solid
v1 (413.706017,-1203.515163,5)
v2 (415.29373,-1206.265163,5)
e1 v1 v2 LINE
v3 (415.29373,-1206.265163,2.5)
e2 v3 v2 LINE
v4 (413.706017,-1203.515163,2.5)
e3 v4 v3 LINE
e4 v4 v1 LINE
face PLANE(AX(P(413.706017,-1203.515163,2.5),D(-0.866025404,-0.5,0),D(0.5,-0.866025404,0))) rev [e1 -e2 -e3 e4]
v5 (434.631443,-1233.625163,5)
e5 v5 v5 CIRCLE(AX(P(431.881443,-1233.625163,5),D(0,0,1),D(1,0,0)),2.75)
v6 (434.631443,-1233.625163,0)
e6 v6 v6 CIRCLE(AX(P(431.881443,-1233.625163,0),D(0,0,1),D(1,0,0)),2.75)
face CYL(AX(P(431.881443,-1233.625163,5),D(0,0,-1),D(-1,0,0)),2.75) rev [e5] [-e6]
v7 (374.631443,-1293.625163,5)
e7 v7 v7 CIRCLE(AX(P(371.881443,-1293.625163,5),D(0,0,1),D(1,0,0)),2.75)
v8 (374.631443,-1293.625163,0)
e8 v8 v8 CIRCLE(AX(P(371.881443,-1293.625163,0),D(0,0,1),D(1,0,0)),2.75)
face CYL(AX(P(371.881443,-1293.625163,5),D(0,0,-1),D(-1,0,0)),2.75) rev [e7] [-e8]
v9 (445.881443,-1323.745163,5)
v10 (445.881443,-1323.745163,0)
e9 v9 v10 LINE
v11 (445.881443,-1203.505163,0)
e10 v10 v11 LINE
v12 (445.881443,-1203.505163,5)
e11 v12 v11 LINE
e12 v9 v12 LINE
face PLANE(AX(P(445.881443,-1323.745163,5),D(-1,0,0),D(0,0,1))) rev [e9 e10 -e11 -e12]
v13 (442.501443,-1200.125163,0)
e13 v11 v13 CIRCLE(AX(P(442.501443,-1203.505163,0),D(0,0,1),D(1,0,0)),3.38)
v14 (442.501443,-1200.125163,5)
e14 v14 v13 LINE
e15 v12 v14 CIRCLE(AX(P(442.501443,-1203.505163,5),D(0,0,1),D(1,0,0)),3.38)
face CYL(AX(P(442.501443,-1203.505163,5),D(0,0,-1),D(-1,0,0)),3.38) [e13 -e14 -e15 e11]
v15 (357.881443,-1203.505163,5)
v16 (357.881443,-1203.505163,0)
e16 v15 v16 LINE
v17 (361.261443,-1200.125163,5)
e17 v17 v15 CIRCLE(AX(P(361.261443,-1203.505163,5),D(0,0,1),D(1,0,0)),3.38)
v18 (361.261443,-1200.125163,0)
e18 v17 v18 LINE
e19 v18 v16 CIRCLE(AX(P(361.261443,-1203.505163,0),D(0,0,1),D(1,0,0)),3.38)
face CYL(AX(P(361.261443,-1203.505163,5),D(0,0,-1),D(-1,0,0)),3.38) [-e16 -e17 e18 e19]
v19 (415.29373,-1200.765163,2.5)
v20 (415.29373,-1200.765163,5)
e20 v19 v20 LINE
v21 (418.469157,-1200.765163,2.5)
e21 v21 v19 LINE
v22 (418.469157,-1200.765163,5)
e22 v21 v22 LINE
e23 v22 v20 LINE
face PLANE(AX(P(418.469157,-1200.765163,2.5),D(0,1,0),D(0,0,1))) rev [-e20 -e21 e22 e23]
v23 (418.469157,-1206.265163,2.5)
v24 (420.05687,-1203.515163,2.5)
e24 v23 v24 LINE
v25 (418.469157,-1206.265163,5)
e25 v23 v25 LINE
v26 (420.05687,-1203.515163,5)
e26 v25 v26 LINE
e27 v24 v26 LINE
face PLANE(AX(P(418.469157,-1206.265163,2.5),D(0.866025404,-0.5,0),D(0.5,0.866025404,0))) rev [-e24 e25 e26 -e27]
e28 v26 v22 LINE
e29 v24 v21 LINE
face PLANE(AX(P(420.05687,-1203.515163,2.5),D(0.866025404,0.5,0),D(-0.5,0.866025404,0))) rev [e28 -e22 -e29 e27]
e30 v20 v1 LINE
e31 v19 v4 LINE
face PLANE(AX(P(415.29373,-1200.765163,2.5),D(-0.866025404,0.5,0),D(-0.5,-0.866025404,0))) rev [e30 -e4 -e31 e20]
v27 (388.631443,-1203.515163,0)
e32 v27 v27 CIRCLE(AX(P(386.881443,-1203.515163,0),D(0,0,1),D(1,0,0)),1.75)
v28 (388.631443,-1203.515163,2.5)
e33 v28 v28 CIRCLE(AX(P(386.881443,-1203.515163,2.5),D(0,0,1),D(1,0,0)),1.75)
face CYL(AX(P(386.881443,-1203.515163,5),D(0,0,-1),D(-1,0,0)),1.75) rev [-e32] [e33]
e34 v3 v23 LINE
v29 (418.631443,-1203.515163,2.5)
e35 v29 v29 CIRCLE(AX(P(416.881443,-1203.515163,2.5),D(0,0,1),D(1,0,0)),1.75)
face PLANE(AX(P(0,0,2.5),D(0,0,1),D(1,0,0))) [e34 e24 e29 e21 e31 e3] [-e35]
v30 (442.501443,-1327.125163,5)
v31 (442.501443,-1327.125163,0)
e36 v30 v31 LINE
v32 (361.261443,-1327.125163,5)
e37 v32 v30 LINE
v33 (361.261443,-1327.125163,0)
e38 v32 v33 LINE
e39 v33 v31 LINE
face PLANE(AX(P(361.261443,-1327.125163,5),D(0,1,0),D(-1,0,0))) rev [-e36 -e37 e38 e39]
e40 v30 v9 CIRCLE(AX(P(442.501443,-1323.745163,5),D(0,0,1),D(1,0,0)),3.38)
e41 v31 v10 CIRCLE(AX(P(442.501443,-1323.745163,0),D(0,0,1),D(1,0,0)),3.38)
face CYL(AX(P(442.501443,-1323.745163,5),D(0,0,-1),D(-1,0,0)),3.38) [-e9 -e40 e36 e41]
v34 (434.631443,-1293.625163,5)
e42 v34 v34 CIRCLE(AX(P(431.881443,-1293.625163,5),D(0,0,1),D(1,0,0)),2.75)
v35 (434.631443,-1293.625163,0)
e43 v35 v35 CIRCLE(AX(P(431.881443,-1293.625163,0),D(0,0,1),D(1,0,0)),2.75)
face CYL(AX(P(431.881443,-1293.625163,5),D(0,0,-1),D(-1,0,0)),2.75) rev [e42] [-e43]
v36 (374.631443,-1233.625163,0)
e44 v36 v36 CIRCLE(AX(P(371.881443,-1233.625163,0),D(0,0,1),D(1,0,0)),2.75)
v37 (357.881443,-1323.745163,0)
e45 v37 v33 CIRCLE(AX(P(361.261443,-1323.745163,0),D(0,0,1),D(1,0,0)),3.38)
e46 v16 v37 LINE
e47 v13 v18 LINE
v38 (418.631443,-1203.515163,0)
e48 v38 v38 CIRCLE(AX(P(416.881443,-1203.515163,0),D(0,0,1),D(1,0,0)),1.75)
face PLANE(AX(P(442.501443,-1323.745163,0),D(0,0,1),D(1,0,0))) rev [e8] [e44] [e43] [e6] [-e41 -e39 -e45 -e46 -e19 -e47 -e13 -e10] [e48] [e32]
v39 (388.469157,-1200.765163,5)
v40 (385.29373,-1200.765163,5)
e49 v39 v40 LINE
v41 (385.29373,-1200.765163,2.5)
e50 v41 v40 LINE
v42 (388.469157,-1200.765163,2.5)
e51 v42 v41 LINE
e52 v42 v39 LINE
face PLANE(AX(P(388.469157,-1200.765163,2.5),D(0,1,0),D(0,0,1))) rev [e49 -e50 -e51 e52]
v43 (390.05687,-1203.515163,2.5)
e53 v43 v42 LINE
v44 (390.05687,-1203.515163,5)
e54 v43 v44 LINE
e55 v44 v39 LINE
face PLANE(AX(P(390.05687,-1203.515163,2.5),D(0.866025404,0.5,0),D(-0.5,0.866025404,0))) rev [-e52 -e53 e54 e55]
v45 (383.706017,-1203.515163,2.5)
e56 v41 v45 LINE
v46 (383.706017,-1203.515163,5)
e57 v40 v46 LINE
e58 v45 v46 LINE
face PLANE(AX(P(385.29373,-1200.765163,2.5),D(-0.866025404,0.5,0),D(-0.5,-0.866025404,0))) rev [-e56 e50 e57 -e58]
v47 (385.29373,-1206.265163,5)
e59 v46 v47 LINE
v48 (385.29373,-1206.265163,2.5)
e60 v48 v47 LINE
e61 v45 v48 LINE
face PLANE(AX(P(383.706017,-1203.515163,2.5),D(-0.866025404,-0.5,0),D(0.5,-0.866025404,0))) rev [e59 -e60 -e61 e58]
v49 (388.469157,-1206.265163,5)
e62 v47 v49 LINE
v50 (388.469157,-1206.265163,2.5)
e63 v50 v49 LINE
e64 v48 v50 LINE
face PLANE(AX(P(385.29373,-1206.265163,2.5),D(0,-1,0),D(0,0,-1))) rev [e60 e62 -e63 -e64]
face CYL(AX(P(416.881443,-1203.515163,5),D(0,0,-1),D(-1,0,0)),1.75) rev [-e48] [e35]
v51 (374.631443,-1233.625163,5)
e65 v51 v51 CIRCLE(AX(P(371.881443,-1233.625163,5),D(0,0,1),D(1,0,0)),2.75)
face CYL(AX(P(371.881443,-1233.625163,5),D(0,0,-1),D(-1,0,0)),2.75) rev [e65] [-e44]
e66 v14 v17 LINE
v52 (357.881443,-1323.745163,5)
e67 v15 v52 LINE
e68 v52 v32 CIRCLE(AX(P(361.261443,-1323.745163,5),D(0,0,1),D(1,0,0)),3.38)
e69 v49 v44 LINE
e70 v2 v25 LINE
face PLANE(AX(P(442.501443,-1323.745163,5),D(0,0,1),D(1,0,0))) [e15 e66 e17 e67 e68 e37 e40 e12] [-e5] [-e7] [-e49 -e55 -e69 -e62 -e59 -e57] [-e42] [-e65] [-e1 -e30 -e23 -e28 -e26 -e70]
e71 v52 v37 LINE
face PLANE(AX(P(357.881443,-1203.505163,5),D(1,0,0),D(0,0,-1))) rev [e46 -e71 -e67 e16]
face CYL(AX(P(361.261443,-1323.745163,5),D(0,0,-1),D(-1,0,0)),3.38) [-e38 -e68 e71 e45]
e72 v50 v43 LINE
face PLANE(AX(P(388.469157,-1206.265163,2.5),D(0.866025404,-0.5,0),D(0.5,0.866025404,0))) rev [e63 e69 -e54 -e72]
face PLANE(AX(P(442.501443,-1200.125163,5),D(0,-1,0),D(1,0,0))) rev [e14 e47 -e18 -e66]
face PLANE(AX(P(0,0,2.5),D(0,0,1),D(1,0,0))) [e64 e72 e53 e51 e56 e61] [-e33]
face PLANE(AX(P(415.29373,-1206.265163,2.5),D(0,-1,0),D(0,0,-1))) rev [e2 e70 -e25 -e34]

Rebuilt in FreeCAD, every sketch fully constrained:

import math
import FreeCAD as App
import Part
import Sketcher
Q = App.Units.Quantity


def add_polygon(sketch, points):
    """Adds a closed chain of lines whose ends are joined by coincident constraints."""
    first, n = sketch.GeometryCount, len(points)
    for a, b in zip(points, points[1:] + points[:1]):
        sketch.addGeometry(Part.LineSegment(App.Vector(*a, 0), App.Vector(*b, 0)), False)
    for i in range(n):
        sketch.addConstraint(Sketcher.Constraint("Coincident", first + i, 2, first + (i + 1) % n, 1))

doc = App.newDocument("Part")
body = doc.addObject("PartDesign::Body", "Body")

# Sketch on XY plane
sketch1 = body.newObject("Sketcher::SketchObject", "Sketch")
sketch1.AttachmentSupport = (doc.getObject("XY_Plane"), [""])
sketch1.MapMode = "FlatFace"
sketch1.addGeometry(Part.LineSegment(App.Vector(445.9, -1323.7, 0), App.Vector(445.9, -1203.5, 0)), False)
sketch1.addGeometry(Part.ArcOfCircle(Part.Circle(App.Vector(442.5, -1203.5, 0), App.Vector(0, 0, 1), 3.4), math.radians(0), math.radians(90)), False)
sketch1.addGeometry(Part.LineSegment(App.Vector(442.5, -1200.1, 0), App.Vector(361.3, -1200.1, 0)), False)
sketch1.addGeometry(Part.ArcOfCircle(Part.Circle(App.Vector(361.3, -1203.5, 0), App.Vector(0, 0, 1), 3.4), math.radians(90), math.radians(180)), False)
sketch1.addGeometry(Part.LineSegment(App.Vector(357.9, -1203.5, 0), App.Vector(357.9, -1323.7, 0)), False)
sketch1.addGeometry(Part.ArcOfCircle(Part.Circle(App.Vector(361.3, -1323.7, 0), App.Vector(0, 0, 1), 3.4), math.radians(180), math.radians(270)), False)
sketch1.addGeometry(Part.LineSegment(App.Vector(361.3, -1327.1, 0), App.Vector(442.5, -1327.1, 0)), False)
sketch1.addGeometry(Part.ArcOfCircle(Part.Circle(App.Vector(442.5, -1323.7, 0), App.Vector(0, 0, 1), 3.4), math.radians(-90), math.radians(0)), False)
sketch1.addGeometry(Part.Circle(App.Vector(371.9, -1293.6, 0), App.Vector(0, 0, 1), 2.8), False)
sketch1.addGeometry(Part.Circle(App.Vector(431.9, -1293.6, 0), App.Vector(0, 0, 1), 2.8), False)
sketch1.addGeometry(Part.Circle(App.Vector(371.9, -1233.6, 0), App.Vector(0, 0, 1), 2.8), False)
sketch1.addGeometry(Part.Circle(App.Vector(386.9, -1203.5, 0), App.Vector(0, 0, 1), 1.8), False)
sketch1.addGeometry(Part.Circle(App.Vector(431.9, -1233.6, 0), App.Vector(0, 0, 1), 2.8), False)
sketch1.addGeometry(Part.Circle(App.Vector(416.9, -1203.5, 0), App.Vector(0, 0, 1), 1.8), False)
sketch1.addConstraint(Sketcher.Constraint("Tangent", 0, 2, 1, 1))
sketch1.addConstraint(Sketcher.Constraint("Tangent", 1, 2, 2, 1))
sketch1.addConstraint(Sketcher.Constraint("Tangent", 2, 2, 3, 1))
sketch1.addConstraint(Sketcher.Constraint("Tangent", 3, 2, 4, 1))
sketch1.addConstraint(Sketcher.Constraint("Tangent", 4, 2, 5, 1))
sketch1.addConstraint(Sketcher.Constraint("Tangent", 5, 2, 6, 1))
sketch1.addConstraint(Sketcher.Constraint("Tangent", 6, 2, 7, 1))
sketch1.addConstraint(Sketcher.Constraint("Tangent", 7, 2, 0, 1))
sketch1.addConstraint(Sketcher.Constraint("Vertical", 0))
sketch1.addConstraint(Sketcher.Constraint("Horizontal", 2))
sketch1.addConstraint(Sketcher.Constraint("Vertical", 4))
sketch1.addConstraint(Sketcher.Constraint("Horizontal", 6))
sketch1.addConstraint(Sketcher.Constraint("Equal", 1, 3))
sketch1.addConstraint(Sketcher.Constraint("Equal", 3, 5))
sketch1.addConstraint(Sketcher.Constraint("Equal", 5, 7))
sketch1.addConstraint(Sketcher.Constraint("Equal", 8, 9))
sketch1.addConstraint(Sketcher.Constraint("Equal", 9, 10))
sketch1.addConstraint(Sketcher.Constraint("Equal", 10, 12))
sketch1.addConstraint(Sketcher.Constraint("Equal", 11, 13))
sketch1.addConstraint(Sketcher.Constraint("Horizontal", 8, 3, 9, 3))
sketch1.addConstraint(Sketcher.Constraint("Horizontal", 10, 3, 12, 3))
sketch1.addConstraint(Sketcher.Constraint("Horizontal", 11, 3, 13, 3))
sketch1.addConstraint(Sketcher.Constraint("Vertical", 8, 3, 10, 3))
sketch1.addConstraint(Sketcher.Constraint("Vertical", 9, 3, 12, 3))
sketch1.addConstraint(Sketcher.Constraint("Diameter", 8, 5.5))
sketch1.addConstraint(Sketcher.Constraint("Diameter", 11, 3.5))
sketch1.addConstraint(Sketcher.Constraint("Radius", 1, 3.38))
sketch1.addConstraint(Sketcher.Constraint("DistanceX", 8, 3, 9, 3, 60.0))
sketch1.addConstraint(Sketcher.Constraint("DistanceY", 8, 3, 10, 3, 60.0))
sketch1.addConstraint(Sketcher.Constraint("DistanceX", 10, 3, 11, 3, 15.0))
sketch1.addConstraint(Sketcher.Constraint("DistanceX", 11, 3, 13, 3, 30.0))
sketch1.addConstraint(Sketcher.Constraint("DistanceX", 13, 3, 0, 2, 29.0))
sketch1.addConstraint(Sketcher.Constraint("DistanceX", 3, 2, 11, 3, 29.0))
sketch1.addConstraint(Sketcher.Constraint("DistanceY", 0, 1, 0, 2, 120.24))
sketch1.addConstraint(Sketcher.Constraint("DistanceY", 12, 3, 1, 2, 33.5))
sketch1.addConstraint(Sketcher.Constraint("DistanceY", 11, 3, 3, 3, 0.01))
sketch1.addConstraint(Sketcher.Constraint("DistanceX", -1, 1, 1, 3, 442.501443))
sketch1.addConstraint(Sketcher.Constraint("DistanceY", 1, 3, -1, 1, 1203.505163))
pad1 = body.newObject("PartDesign::Pad", "Pad")
pad1.Profile = sketch1
pad1.Length = 5

# Sketch on XY plane
sketch2 = body.newObject("Sketcher::SketchObject", "Sketch001")
sketch2.AttachmentSupport = (doc.getObject("XY_Plane"), [""])
sketch2.MapMode = "FlatFace"
sketch2.AttachmentOffset = App.Placement(App.Vector(0, 0, 5), App.Rotation())
add_polygon(sketch2, [(388.469157, -1200.765163), (385.29373, -1200.765163), (383.706017, -1203.515163), (385.29373, -1206.265163), (388.469157, -1206.265163), (390.05687, -1203.515163)])  # lines 0-5
add_polygon(sketch2, [(418.469157, -1200.765163), (415.29373, -1200.765163), (413.706017, -1203.515163), (415.29373, -1206.265163), (418.469157, -1206.265163), (420.05687, -1203.515163)])  # lines 6-11
sketch2.addConstraint(Sketcher.Constraint("Horizontal", 0))
sketch2.addConstraint(Sketcher.Constraint("Horizontal", 3))
sketch2.addConstraint(Sketcher.Constraint("Horizontal", 6))
sketch2.addConstraint(Sketcher.Constraint("Horizontal", 9))
sketch2.addConstraint(Sketcher.Constraint("Parallel", 1, 4))
sketch2.addConstraint(Sketcher.Constraint("Parallel", 2, 5))
sketch2.addConstraint(Sketcher.Constraint("Parallel", 4, 7))
sketch2.addConstraint(Sketcher.Constraint("Parallel", 5, 8))
sketch2.addConstraint(Sketcher.Constraint("Parallel", 7, 10))
sketch2.addConstraint(Sketcher.Constraint("Parallel", 8, 11))
sketch2.addConstraint(Sketcher.Constraint("Horizontal", 1, 2, 4, 2))
sketch2.addConstraint(Sketcher.Constraint("Horizontal", 5, 2, 6, 2))
sketch2.addConstraint(Sketcher.Constraint("Horizontal", 4, 2, 7, 2))
sketch2.addConstraint(Sketcher.Constraint("Horizontal", 3, 2, 8, 2))
sketch2.addConstraint(Sketcher.Constraint("Horizontal", 7, 2, 10, 2))
sketch2.addConstraint(Sketcher.Constraint("Vertical", 0, 2, 2, 2))
sketch2.addConstraint(Sketcher.Constraint("Vertical", 3, 2, 5, 2))
sketch2.addConstraint(Sketcher.Constraint("Equal", 3, 6))
sketch2.addConstraint(Sketcher.Constraint("Angle", 1, Q("-120 deg")))
sketch2.addConstraint(Sketcher.Constraint("DistanceX", 0, 2, 6, 2, 30.0))
sketch2.addConstraint(Sketcher.Constraint("DistanceY", 2, 2, 0, 2, 5.5))
sketch2.addConstraint(Sketcher.Constraint("DistanceX", 0, 2, 0, 1, 3.175426))
sketch2.addConstraint(Sketcher.Constraint("DistanceX", -1, 1, 0, 2, 385.29373))
sketch2.addConstraint(Sketcher.Constraint("DistanceY", 0, 2, -1, 1, 1200.765163))
pocket1 = body.newObject("PartDesign::Pocket", "Pocket")
pocket1.Profile = sketch2
pocket1.Length = 2.5

doc.recompute()
